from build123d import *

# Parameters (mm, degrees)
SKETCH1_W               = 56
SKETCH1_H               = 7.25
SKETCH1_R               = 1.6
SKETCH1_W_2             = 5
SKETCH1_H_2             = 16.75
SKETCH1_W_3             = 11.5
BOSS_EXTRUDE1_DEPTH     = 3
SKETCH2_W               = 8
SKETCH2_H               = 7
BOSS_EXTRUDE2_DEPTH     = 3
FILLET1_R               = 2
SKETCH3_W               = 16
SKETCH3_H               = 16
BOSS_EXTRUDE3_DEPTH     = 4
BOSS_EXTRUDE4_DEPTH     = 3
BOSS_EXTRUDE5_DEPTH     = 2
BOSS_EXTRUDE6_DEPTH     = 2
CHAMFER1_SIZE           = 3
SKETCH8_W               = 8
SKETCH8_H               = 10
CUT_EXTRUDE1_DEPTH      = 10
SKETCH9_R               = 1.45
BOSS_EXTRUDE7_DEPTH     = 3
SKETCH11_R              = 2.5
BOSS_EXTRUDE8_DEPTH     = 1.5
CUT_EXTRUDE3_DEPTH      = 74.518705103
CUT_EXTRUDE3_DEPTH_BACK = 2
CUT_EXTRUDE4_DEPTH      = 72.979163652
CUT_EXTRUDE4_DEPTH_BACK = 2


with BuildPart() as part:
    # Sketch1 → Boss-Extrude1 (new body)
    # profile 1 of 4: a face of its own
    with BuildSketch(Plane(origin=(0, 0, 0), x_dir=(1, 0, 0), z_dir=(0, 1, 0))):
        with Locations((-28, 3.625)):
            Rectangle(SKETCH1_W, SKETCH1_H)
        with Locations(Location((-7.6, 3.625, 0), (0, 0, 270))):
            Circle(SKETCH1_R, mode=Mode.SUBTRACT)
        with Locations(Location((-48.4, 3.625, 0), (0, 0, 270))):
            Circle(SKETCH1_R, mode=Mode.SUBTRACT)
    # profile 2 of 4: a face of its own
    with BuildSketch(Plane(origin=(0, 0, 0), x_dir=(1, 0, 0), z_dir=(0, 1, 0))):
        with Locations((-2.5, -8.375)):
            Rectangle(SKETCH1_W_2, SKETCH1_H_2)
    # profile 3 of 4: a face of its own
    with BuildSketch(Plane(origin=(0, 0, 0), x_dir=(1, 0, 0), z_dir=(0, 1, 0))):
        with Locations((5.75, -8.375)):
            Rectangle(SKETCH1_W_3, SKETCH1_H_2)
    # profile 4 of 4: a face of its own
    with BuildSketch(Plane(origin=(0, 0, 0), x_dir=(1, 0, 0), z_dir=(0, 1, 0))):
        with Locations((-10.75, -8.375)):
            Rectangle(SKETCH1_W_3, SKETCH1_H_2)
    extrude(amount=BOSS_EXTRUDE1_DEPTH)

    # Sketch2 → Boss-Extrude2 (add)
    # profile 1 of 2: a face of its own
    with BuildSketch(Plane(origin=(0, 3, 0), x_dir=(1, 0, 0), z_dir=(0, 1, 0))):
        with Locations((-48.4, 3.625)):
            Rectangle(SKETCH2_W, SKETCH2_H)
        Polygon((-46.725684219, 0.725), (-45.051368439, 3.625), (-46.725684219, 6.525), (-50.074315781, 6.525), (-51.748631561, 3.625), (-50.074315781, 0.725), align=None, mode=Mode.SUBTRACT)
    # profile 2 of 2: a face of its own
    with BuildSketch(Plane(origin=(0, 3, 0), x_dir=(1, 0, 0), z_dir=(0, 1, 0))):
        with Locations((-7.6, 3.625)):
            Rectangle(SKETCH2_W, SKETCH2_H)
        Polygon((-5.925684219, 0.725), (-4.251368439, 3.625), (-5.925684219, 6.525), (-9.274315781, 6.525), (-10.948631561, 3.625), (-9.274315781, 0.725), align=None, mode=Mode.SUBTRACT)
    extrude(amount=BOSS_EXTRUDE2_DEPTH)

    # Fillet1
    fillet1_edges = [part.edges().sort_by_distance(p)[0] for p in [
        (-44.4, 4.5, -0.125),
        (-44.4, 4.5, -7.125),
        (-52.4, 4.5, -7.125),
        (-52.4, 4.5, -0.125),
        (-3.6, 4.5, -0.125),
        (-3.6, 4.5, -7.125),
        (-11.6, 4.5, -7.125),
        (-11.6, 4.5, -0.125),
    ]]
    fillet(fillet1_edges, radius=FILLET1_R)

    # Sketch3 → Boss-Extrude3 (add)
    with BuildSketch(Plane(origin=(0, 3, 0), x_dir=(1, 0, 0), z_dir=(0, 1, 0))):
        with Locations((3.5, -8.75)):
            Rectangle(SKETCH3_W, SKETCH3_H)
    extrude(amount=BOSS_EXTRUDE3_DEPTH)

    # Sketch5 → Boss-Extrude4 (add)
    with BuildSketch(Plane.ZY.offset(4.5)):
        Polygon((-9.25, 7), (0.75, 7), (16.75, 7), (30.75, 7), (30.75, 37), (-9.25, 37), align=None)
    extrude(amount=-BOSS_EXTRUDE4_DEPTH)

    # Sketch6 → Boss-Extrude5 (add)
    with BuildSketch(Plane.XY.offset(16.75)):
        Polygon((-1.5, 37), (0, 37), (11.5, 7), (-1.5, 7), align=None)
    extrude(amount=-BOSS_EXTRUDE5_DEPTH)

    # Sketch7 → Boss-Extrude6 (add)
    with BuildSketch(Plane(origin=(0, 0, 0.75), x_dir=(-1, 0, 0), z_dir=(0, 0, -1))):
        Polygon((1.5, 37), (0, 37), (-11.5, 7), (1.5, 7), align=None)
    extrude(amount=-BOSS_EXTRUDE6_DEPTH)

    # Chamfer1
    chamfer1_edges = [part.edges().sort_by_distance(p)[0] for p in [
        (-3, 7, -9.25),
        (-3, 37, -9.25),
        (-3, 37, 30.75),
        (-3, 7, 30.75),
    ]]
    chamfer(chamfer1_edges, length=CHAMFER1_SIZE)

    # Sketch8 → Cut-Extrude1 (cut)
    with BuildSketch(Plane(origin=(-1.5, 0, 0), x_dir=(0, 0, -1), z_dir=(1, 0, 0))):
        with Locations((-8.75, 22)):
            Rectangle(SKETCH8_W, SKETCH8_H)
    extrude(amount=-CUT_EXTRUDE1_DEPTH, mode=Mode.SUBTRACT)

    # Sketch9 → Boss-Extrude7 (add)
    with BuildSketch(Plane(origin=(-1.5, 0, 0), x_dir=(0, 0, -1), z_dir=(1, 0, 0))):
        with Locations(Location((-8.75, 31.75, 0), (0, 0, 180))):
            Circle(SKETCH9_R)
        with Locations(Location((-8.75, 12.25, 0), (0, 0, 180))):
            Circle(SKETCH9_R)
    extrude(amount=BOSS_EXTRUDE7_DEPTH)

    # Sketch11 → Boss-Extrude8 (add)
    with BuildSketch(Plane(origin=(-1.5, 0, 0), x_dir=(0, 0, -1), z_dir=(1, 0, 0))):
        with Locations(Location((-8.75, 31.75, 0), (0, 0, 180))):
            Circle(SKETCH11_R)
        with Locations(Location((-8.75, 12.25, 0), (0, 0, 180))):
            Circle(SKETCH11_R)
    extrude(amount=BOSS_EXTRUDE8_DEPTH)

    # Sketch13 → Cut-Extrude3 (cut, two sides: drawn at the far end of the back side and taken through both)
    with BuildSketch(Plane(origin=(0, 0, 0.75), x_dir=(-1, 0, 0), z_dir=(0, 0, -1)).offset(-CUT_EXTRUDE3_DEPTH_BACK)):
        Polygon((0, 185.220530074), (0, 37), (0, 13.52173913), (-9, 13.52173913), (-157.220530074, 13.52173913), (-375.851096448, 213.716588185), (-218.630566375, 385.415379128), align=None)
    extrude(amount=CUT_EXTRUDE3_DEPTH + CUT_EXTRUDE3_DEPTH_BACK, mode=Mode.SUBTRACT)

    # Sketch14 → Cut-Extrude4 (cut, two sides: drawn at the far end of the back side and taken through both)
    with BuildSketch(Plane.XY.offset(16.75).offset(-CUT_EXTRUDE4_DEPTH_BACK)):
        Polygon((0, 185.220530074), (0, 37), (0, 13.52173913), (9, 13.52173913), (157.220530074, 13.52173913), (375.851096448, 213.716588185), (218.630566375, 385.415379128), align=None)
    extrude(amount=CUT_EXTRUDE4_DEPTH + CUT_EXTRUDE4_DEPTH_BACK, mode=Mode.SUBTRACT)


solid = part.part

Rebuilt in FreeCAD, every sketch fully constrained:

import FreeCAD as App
import Part
import Sketcher
Q = App.Units.Quantity


def edges_at(feature, points):
    """Names of the edges that pass closest to the given points."""
    edges = feature.Shape.Edges
    near = lambda p: min(range(len(edges)), key=lambda i: edges[i].distToShape(Part.Vertex(*p))[0])
    return sorted({f"Edge{near(p) + 1}" for p in points})

doc = App.newDocument("Part")
body = doc.addObject("PartDesign::Body", "Body")

sketch1 = body.newObject("Sketcher::SketchObject", "Sketch")
sketch1.AttachmentSupport = (doc.getObject("XZ_Plane"), [""])
sketch1.MapMode = "FlatFace"
sketch1.addGeometry([
    Part.LineSegment(App.Vector(-56, -7.2, 0), App.Vector(-56, 0, 0)),
    Part.LineSegment(App.Vector(-56, 0, 0), App.Vector(-16.5, 0, 0)),
    Part.LineSegment(App.Vector(-16.5, 0, 0), App.Vector(-16.5, 16.8, 0)),
    Part.LineSegment(App.Vector(-16.5, 16.8, 0), App.Vector(11.5, 16.8, 0)),
    Part.LineSegment(App.Vector(11.5, 16.8, 0), App.Vector(11.5, 0, 0)),
    Part.LineSegment(App.Vector(11.5, 0, 0), App.Vector(0, 0, 0)),
    Part.LineSegment(App.Vector(0, 0, 0), App.Vector(0, -7.2, 0)),
    Part.LineSegment(App.Vector(0, -7.2, 0), App.Vector(-56, -7.2, 0)),
    Part.Circle(App.Vector(-48.4, -3.6, 0), App.Vector(0, 0, 1), 1.6),
    Part.Circle(App.Vector(-7.6, -3.6, 0), App.Vector(0, 0, 1), 1.6),
], False)
sketch1.addConstraint([
    Sketcher.Constraint("Coincident", 0, 2, 1, 1),
    Sketcher.Constraint("Coincident", 1, 2, 2, 1),
    Sketcher.Constraint("Coincident", 2, 2, 3, 1),
    Sketcher.Constraint("Coincident", 3, 2, 4, 1),
    Sketcher.Constraint("Coincident", 4, 2, 5, 1),
    Sketcher.Constraint("Coincident", 5, 2, 6, 1),
    Sketcher.Constraint("Coincident", 6, 2, 7, 1),
    Sketcher.Constraint("Coincident", 7, 2, 0, 1),
    Sketcher.Constraint("Vertical", 0),
    Sketcher.Constraint("Horizontal", 1),
    Sketcher.Constraint("Vertical", 2),
    Sketcher.Constraint("Horizontal", 3),
    Sketcher.Constraint("Vertical", 4),
    Sketcher.Constraint("Horizontal", 5),
    Sketcher.Constraint("Vertical", 6),
    Sketcher.Constraint("Horizontal", 7),
    Sketcher.Constraint("Coincident", 5, 2, -1, 1),
    Sketcher.Constraint("Equal", 8, 9),
    Sketcher.Constraint("PointOnObject", 0, 2, -1),
    Sketcher.Constraint("Horizontal", 8, 3, 9, 3),
    Sketcher.Constraint("Diameter", 8, 3.2),
    Sketcher.Constraint("DistanceX", 3, 1, 3, 2, 28.0),
    Sketcher.Constraint("DistanceX", 7, 2, 7, 1, 56.0),
    Sketcher.Constraint("DistanceX", 1, 1, 1, 2, 39.5),
    Sketcher.Constraint("DistanceY", 6, 2, 3, 2, 24.0),
    Sketcher.Constraint("DistanceY", 0, 1, 0, 2, 7.25),
    Sketcher.Constraint("DistanceX", 8, 3, -1, 1, 48.4),
    Sketcher.Constraint("DistanceX", 9, 3, -1, 1, 7.6),
    Sketcher.Constraint("DistanceY", 8, 3, -1, 1, 3.625),
])
pad1 = body.newObject("PartDesign::Pad", "Pad")
pad1.Profile = sketch1
pad1.Length = 3
pad1.Reversed = True

sketch2 = body.newObject("Sketcher::SketchObject", "Sketch001")
sketch2.AttachmentSupport = (doc.getObject("XZ_Plane"), [""])
sketch2.MapMode = "FlatFace"
sketch2.AttachmentOffset = App.Placement(App.Vector(0, 0, -3), App.Rotation())
sketch2.addGeometry([
    Part.LineSegment(App.Vector(-52.4, -7.1, 0), App.Vector(-52.4, -0.1, 0)),
    Part.LineSegment(App.Vector(-52.4, -0.1, 0), App.Vector(-44.4, -0.1, 0)),
    Part.LineSegment(App.Vector(-44.4, -0.1, 0), App.Vector(-44.4, -7.1, 0)),
    Part.LineSegment(App.Vector(-44.4, -7.1, 0), App.Vector(-52.4, -7.1, 0)),
    Part.LineSegment(App.Vector(-45.1, -3.6, 0), App.Vector(-46.7, -0.7, 0)),
    Part.LineSegment(App.Vector(-46.7, -0.7, 0), App.Vector(-50.1, -0.7, 0)),
    Part.LineSegment(App.Vector(-50.1, -0.7, 0), App.Vector(-51.7, -3.6, 0)),
    Part.LineSegment(App.Vector(-51.7, -3.6, 0), App.Vector(-50.1, -6.5, 0)),
    Part.LineSegment(App.Vector(-50.1, -6.5, 0), App.Vector(-46.7, -6.5, 0)),
    Part.LineSegment(App.Vector(-46.7, -6.5, 0), App.Vector(-45.1, -3.6, 0)),
    Part.LineSegment(App.Vector(-11.6, -7.1, 0), App.Vector(-11.6, -0.1, 0)),
    Part.LineSegment(App.Vector(-11.6, -0.1, 0), App.Vector(-3.6, -0.1, 0)),
    Part.LineSegment(App.Vector(-3.6, -0.1, 0), App.Vector(-3.6, -7.1, 0)),
    Part.LineSegment(App.Vector(-3.6, -7.1, 0), App.Vector(-11.6, -7.1, 0)),
    Part.LineSegment(App.Vector(-4.3, -3.6, 0), App.Vector(-5.9, -0.7, 0)),
    Part.LineSegment(App.Vector(-5.9, -0.7, 0), App.Vector(-9.3, -0.7, 0)),
    Part.LineSegment(App.Vector(-9.3, -0.7, 0), App.Vector(-10.9, -3.6, 0)),
    Part.LineSegment(App.Vector(-10.9, -3.6, 0), App.Vector(-9.3, -6.5, 0)),
    Part.LineSegment(App.Vector(-9.3, -6.5, 0), App.Vector(-5.9, -6.5, 0)),
    Part.LineSegment(App.Vector(-5.9, -6.5, 0), App.Vector(-4.3, -3.6, 0)),
], False)
sketch2.addConstraint([
    Sketcher.Constraint("Coincident", 0, 2, 1, 1),
    Sketcher.Constraint("Coincident", 1, 2, 2, 1),
    Sketcher.Constraint("Coincident", 2, 2, 3, 1),
    Sketcher.Constraint("Coincident", 3, 2, 0, 1),
    Sketcher.Constraint("Coincident", 4, 2, 5, 1),
    Sketcher.Constraint("Coincident", 5, 2, 6, 1),
    Sketcher.Constraint("Coincident", 6, 2, 7, 1),
    Sketcher.Constraint("Coincident", 7, 2, 8, 1),
    Sketcher.Constraint("Coincident", 8, 2, 9, 1),
    Sketcher.Constraint("Coincident", 9, 2, 4, 1),
    Sketcher.Constraint("Coincident", 10, 2, 11, 1),
    Sketcher.Constraint("Coincident", 11, 2, 12, 1),
    Sketcher.Constraint("Coincident", 12, 2, 13, 1),
    Sketcher.Constraint("Coincident", 13, 2, 10, 1),
    Sketcher.Constraint("Coincident", 14, 2, 15, 1),
    Sketcher.Constraint("Coincident", 15, 2, 16, 1),
    Sketcher.Constraint("Coincident", 16, 2, 17, 1),
    Sketcher.Constraint("Coincident", 17, 2, 18, 1),
    Sketcher.Constraint("Coincident", 18, 2, 19, 1),
    Sketcher.Constraint("Coincident", 19, 2, 14, 1),
    Sketcher.Constraint("Vertical", 0),
    Sketcher.Constraint("Horizontal", 1),
    Sketcher.Constraint("Vertical", 2),
    Sketcher.Constraint("Horizontal", 3),
    Sketcher.Constraint("Horizontal", 5),
    Sketcher.Constraint("Horizontal", 8),
    Sketcher.Constraint("Vertical", 10),
    Sketcher.Constraint("Horizontal", 11),
    Sketcher.Constraint("Vertical", 12),
    Sketcher.Constraint("Horizontal", 13),
    Sketcher.Constraint("Horizontal", 15),
    Sketcher.Constraint("Horizontal", 18),
    Sketcher.Constraint("Parallel", 4, 7),
    Sketcher.Constraint("Parallel", 6, 9),
    Sketcher.Constraint("Parallel", 7, 14),
    Sketcher.Constraint("Parallel", 9, 16),
    Sketcher.Constraint("Parallel", 14, 17),
    Sketcher.Constraint("Parallel", 16, 19),
    Sketcher.Constraint("Horizontal", 6, 2, 9, 2),
    Sketcher.Constraint("Horizontal", 1, 2, 10, 2),
    Sketcher.Constraint("Horizontal", 3, 2, 12, 2),
    Sketcher.Constraint("Horizontal", 5, 2, 14, 2),
    Sketcher.Constraint("Horizontal", 9, 2, 16, 2),
    Sketcher.Constraint("Horizontal", 8, 2, 17, 2),
    Sketcher.Constraint("Horizontal", 16, 2, 19, 2),
    Sketcher.Constraint("Vertical", 5, 2, 7, 2),
    Sketcher.Constraint("Vertical", 4, 2, 8, 2),
    Sketcher.Constraint("Equal", 3, 11),
    Sketcher.Constraint("Equal", 8, 15),
    Sketcher.Constraint("DistanceX", 1, 1, 1, 2, 8.0),
    Sketcher.Constraint("DistanceY", 0, 1, 0, 2, 7.0),
    Sketcher.Constraint("Angle", 4, Q("120 deg")),
    Sketcher.Constraint("DistanceX", 0, 2, -1, 1, 52.4),
    Sketcher.Constraint("DistanceX", 10, 2, -1, 1, 11.6),
    Sketcher.Constraint("DistanceY", 4, 2, 1, 2, 0.6),
    Sketcher.Constraint("DistanceY", 6, 2, 5, 2, 2.9),
    Sketcher.Constraint("DistanceY", 0, 2, -1, 1, 0.125),
    Sketcher.Constraint("DistanceX", 5, 2, 5, 1, 3.348632),
    Sketcher.Constraint("DistanceX", 6, 2, -1, 1, 51.748632),
    Sketcher.Constraint("DistanceX", 16, 2, -1, 1, 10.948632),
])
pad2 = body.newObject("PartDesign::Pad", "Pad001")
pad2.Profile = sketch2
pad2.Length = 3
pad2.Reversed = True
doc.recompute()

fillet = body.newObject("PartDesign::Fillet", "Fillet")
fillet.Base = (pad2, edges_at(pad2, [
    (-44.4, 4.5, -0.125),
    (-44.4, 4.5, -7.125),
    (-52.4, 4.5, -7.125),
    (-52.4, 4.5, -0.125),
    (-3.6, 4.5, -0.125),
    (-3.6, 4.5, -7.125),
    (-11.6, 4.5, -7.125),
    (-11.6, 4.5, -0.125),
]))
fillet.Radius = 2

sketch3 = body.newObject("Sketcher::SketchObject", "Sketch002")
sketch3.AttachmentSupport = (doc.getObject("XZ_Plane"), [""])
sketch3.MapMode = "FlatFace"
sketch3.AttachmentOffset = App.Placement(App.Vector(0, 0, -3), App.Rotation())
sketch3.addGeometry([
    Part.LineSegment(App.Vector(-4, 1, 0), App.Vector(-4, 17, 0)),
    Part.LineSegment(App.Vector(-4, 17, 0), App.Vector(12, 17, 0)),
    Part.LineSegment(App.Vector(12, 17, 0), App.Vector(12, 1, 0)),
    Part.LineSegment(App.Vector(12, 1, 0), App.Vector(-4, 1, 0)),
], False)
sketch3.addConstraint([
    Sketcher.Constraint("Coincident", 0, 2, 1, 1),
    Sketcher.Constraint("Coincident", 1, 2, 2, 1),
    Sketcher.Constraint("Coincident", 2, 2, 3, 1),
    Sketcher.Constraint("Coincident", 3, 2, 0, 1),
    Sketcher.Constraint("Vertical", 0),
    Sketcher.Constraint("Horizontal", 1),
    Sketcher.Constraint("Vertical", 2),
    Sketcher.Constraint("Horizontal", 3),
    Sketcher.Constraint("Equal", 3, 0),
    Sketcher.Constraint("DistanceX", 1, 1, 1, 2, 16.0),
    Sketcher.Constraint("DistanceX", 0, 2, -1, 1, 4.5),
    Sketcher.Constraint("DistanceY", -1, 1, 0, 2, 16.75),
])
pad3 = body.newObject("PartDesign::Pad", "Pad002")
pad3.Profile = sketch3
pad3.Length = 4
pad3.Reversed = True

sketch4 = body.newObject("Sketcher::SketchObject", "Sketch003")
sketch4.AttachmentSupport = (doc.getObject("YZ_Plane"), [""])
sketch4.MapMode = "FlatFace"
sketch4.AttachmentOffset = App.Placement(App.Vector(0, 0, -4.5), App.Rotation())
sketch4.addGeometry([
    Part.LineSegment(App.Vector(7, -9, 0), App.Vector(7, 31, 0)),
    Part.LineSegment(App.Vector(7, 31, 0), App.Vector(37, 31, 0)),
    Part.LineSegment(App.Vector(37, 31, 0), App.Vector(37, -9, 0)),
    Part.LineSegment(App.Vector(37, -9, 0), App.Vector(7, -9, 0)),
], False)
sketch4.addConstraint([
    Sketcher.Constraint("Coincident", 0, 2, 1, 1),
    Sketcher.Constraint("Coincident", 1, 2, 2, 1),
    Sketcher.Constraint("Coincident", 2, 2, 3, 1),
    Sketcher.Constraint("Coincident", 3, 2, 0, 1),
    Sketcher.Constraint("Vertical", 0),
    Sketcher.Constraint("Horizontal", 1),
    Sketcher.Constraint("Vertical", 2),
    Sketcher.Constraint("Horizontal", 3),
    Sketcher.Constraint("DistanceX", 1, 1, 1, 2, 30.0),
    Sketcher.Constraint("DistanceY", 0, 1, 0, 2, 40.0),
    Sketcher.Constraint("DistanceX", -1, 1, 0, 2, 7.0),
    Sketcher.Constraint("DistanceY", -1, 1, 0, 2, 30.75),
])
pad4 = body.newObject("PartDesign::Pad", "Pad003")
pad4.Profile = sketch4
pad4.Length = 3

sketch5 = body.newObject("Sketcher::SketchObject", "Sketch004")
sketch5.AttachmentSupport = (doc.getObject("XY_Plane"), [""])
sketch5.MapMode = "FlatFace"
sketch5.AttachmentOffset = App.Placement(App.Vector(0, 0, 16.75), App.Rotation())
sketch5.addGeometry([
    Part.LineSegment(App.Vector(0, 37, 0), App.Vector(-1.5, 37, 0)),
    Part.LineSegment(App.Vector(-1.5, 37, 0), App.Vector(-1.5, 7, 0)),
    Part.LineSegment(App.Vector(-1.5, 7, 0), App.Vector(11.5, 7, 0)),
    Part.LineSegment(App.Vector(11.5, 7, 0), App.Vector(0, 37, 0)),
], False)
sketch5.addConstraint([
    Sketcher.Constraint("Coincident", 0, 2, 1, 1),
    Sketcher.Constraint("Coincident", 1, 2, 2, 1),
    Sketcher.Constraint("Coincident", 2, 2, 3, 1),
    Sketcher.Constraint("Coincident", 3, 2, 0, 1),
    Sketcher.Constraint("Horizontal", 0),
    Sketcher.Constraint("Vertical", 1),
    Sketcher.Constraint("Horizontal", 2),
    Sketcher.Constraint("PointOnObject", 3, 2, -2),
    Sketcher.Constraint("DistanceX", 2, 1, 2, 2, 13.0),
    Sketcher.Constraint("DistanceY", 1, 2, 1, 1, 30.0),
    Sketcher.Constraint("DistanceX", 0, 2, 0, 1, 1.5),
    Sketcher.Constraint("DistanceY", -1, 1, 0, 2, 37.0),
])
pad5 = body.newObject("PartDesign::Pad", "Pad004")
pad5.Profile = sketch5
pad5.Length = 2
pad5.Reversed = True

sketch6 = body.newObject("Sketcher::SketchObject", "Sketch005")
sketch6.AttachmentSupport = (doc.getObject("XY_Plane"), [""])
sketch6.MapMode = "FlatFace"
sketch6.AttachmentOffset = App.Placement(App.Vector(0, 0, 0.75), App.Rotation())
sketch6.addGeometry([
    Part.LineSegment(App.Vector(-1.5, 37, 0), App.Vector(0, 37, 0)),
    Part.LineSegment(App.Vector(0, 37, 0), App.Vector(11.5, 7, 0)),
    Part.LineSegment(App.Vector(11.5, 7, 0), App.Vector(-1.5, 7, 0)),
    Part.LineSegment(App.Vector(-1.5, 7, 0), App.Vector(-1.5, 37, 0)),
], False)
sketch6.addConstraint([
    Sketcher.Constraint("Coincident", 0, 2, 1, 1),
    Sketcher.Constraint("Coincident", 1, 2, 2, 1),
    Sketcher.Constraint("Coincident", 2, 2, 3, 1),
    Sketcher.Constraint("Coincident", 3, 2, 0, 1),
    Sketcher.Constraint("Horizontal", 0),
    Sketcher.Constraint("Horizontal", 2),
    Sketcher.Constraint("Vertical", 3),
    Sketcher.Constraint("PointOnObject", 0, 2, -2),
    Sketcher.Constraint("DistanceX", 2, 2, 2, 1, 13.0),
    Sketcher.Constraint("DistanceY", 3, 1, 3, 2, 30.0),
    Sketcher.Constraint("DistanceX", 0, 1, 0, 2, 1.5),
    Sketcher.Constraint("DistanceY", -1, 1, 0, 2, 37.0),
])
pad6 = body.newObject("PartDesign::Pad", "Pad005")
pad6.Profile = sketch6
pad6.Length = 2
doc.recompute()

chamfer = body.newObject("PartDesign::Chamfer", "Chamfer")
chamfer.Base = (pad6, edges_at(pad6, [
    (-3, 7, -9.25),
    (-3, 37, -9.25),
    (-3, 37, 30.75),
    (-3, 7, 30.75),
]))
chamfer.Size = 3

sketch7 = body.newObject("Sketcher::SketchObject", "Sketch006")
sketch7.AttachmentSupport = (doc.getObject("YZ_Plane"), [""])
sketch7.MapMode = "FlatFace"
sketch7.AttachmentOffset = App.Placement(App.Vector(0, 0, -1.5), App.Rotation())
sketch7.addGeometry([
    Part.LineSegment(App.Vector(27, 13, 0), App.Vector(17, 13, 0)),
    Part.LineSegment(App.Vector(17, 13, 0), App.Vector(17, 5, 0)),
    Part.LineSegment(App.Vector(17, 5, 0), App.Vector(27, 5, 0)),
    Part.LineSegment(App.Vector(27, 5, 0), App.Vector(27, 13, 0)),
], False)
sketch7.addConstraint([
    Sketcher.Constraint("Coincident", 0, 2, 1, 1),
    Sketcher.Constraint("Coincident", 1, 2, 2, 1),
    Sketcher.Constraint("Coincident", 2, 2, 3, 1),
    Sketcher.Constraint("Coincident", 3, 2, 0, 1),
    Sketcher.Constraint("Horizontal", 0),
    Sketcher.Constraint("Vertical", 1),
    Sketcher.Constraint("Horizontal", 2),
    Sketcher.Constraint("Vertical", 3),
    Sketcher.Constraint("DistanceX", 0, 2, 0, 1, 10.0),
    Sketcher.Constraint("DistanceY", 1, 2, 1, 1, 8.0),
    Sketcher.Constraint("DistanceX", -1, 1, 0, 2, 17.0),
    Sketcher.Constraint("DistanceY", -1, 1, 0, 2, 12.75),
])
pocket1 = body.newObject("PartDesign::Pocket", "Pocket")
pocket1.Profile = sketch7
pocket1.Length = 10

sketch8 = body.newObject("Sketcher::SketchObject", "Sketch007")
sketch8.AttachmentSupport = (doc.getObject("YZ_Plane"), [""])
sketch8.MapMode = "FlatFace"
sketch8.AttachmentOffset = App.Placement(App.Vector(0, 0, -1.5), App.Rotation())
sketch8.addGeometry([
    Part.Circle(App.Vector(31.8, 8.8, 0), App.Vector(0, 0, 1), 1.4),
    Part.Circle(App.Vector(12.2, 8.8, 0), App.Vector(0, 0, 1), 1.4),
], False)
sketch8.addConstraint([
    Sketcher.Constraint("Equal", 0, 1),
    Sketcher.Constraint("Horizontal", 0, 3, 1, 3),
    Sketcher.Constraint("Diameter", 0, 2.9),
    Sketcher.Constraint("DistanceX", 1, 3, 0, 3, 19.5),
    Sketcher.Constraint("DistanceX", -1, 1, 0, 3, 31.75),
    Sketcher.Constraint("DistanceY", -1, 1, 0, 3, 8.75),
])
pad7 = body.newObject("PartDesign::Pad", "Pad006")
pad7.Profile = sketch8
pad7.Length = 3

sketch9 = body.newObject("Sketcher::SketchObject", "Sketch008")
sketch9.AttachmentSupport = (doc.getObject("YZ_Plane"), [""])
sketch9.MapMode = "FlatFace"
sketch9.AttachmentOffset = App.Placement(App.Vector(0, 0, -1.5), App.Rotation())
sketch9.addGeometry([
    Part.Circle(App.Vector(31.8, 8.8, 0), App.Vector(0, 0, 1), 2.5),
    Part.Circle(App.Vector(12.2, 8.8, 0), App.Vector(0, 0, 1), 2.5),
], False)
sketch9.addConstraint([
    Sketcher.Constraint("Equal", 0, 1),
    Sketcher.Constraint("Horizontal", 0, 3, 1, 3),
    Sketcher.Constraint("Diameter", 0, 5.0),
    Sketcher.Constraint("DistanceX", 1, 3, 0, 3, 19.5),
    Sketcher.Constraint("DistanceX", -1, 1, 0, 3, 31.75),
    Sketcher.Constraint("DistanceY", -1, 1, 0, 3, 8.75),
])
pad8 = body.newObject("PartDesign::Pad", "Pad007")
pad8.Profile = sketch9
pad8.Length = 1.5

sketch10 = body.newObject("Sketcher::SketchObject", "Sketch009")
sketch10.AttachmentSupport = (doc.getObject("XY_Plane"), [""])
sketch10.MapMode = "FlatFace"
sketch10.AttachmentOffset = App.Placement(App.Vector(0, 0, 0.75), App.Rotation())
sketch10.addGeometry([
    Part.LineSegment(App.Vector(0, 14, 0), App.Vector(0, 185, 0)),
    Part.LineSegment(App.Vector(0, 185, 0), App.Vector(219, 385, 0)),
    Part.LineSegment(App.Vector(219, 385, 0), App.Vector(376, 214, 0)),
    Part.LineSegment(App.Vector(376, 214, 0), App.Vector(157, 14, 0)),
    Part.LineSegment(App.Vector(157, 14, 0), App.Vector(0, 14, 0)),
], False)
sketch10.addConstraint([
    Sketcher.Constraint("Coincident", 0, 2, 1, 1),
    Sketcher.Constraint("Coincident", 1, 2, 2, 1),
    Sketcher.Constraint("Coincident", 2, 2, 3, 1),
    Sketcher.Constraint("Coincident", 3, 2, 4, 1),
    Sketcher.Constraint("Coincident", 4, 2, 0, 1),
    Sketcher.Constraint("Vertical", 0),
    Sketcher.Constraint("Horizontal", 4),
    Sketcher.Constraint("PointOnObject", 0, 2, -2),
    Sketcher.Constraint("Perpendicular", 1, 2),
    Sketcher.Constraint("Perpendicular", 2, 3),
    Sketcher.Constraint("Equal", 1, 3),
    Sketcher.Constraint("DistanceX", 4, 2, 4, 1, 157.22053),
    Sketcher.Constraint("DistanceY", 0, 1, 0, 2, 171.698791),
    Sketcher.Constraint("Distance", 1, 296.44106),
    Sketcher.Constraint("DistanceY", -1, 1, 0, 2, 185.22053),
])
pocket2 = body.newObject("PartDesign::Pocket", "Pocket001")
pocket2.Profile = sketch10
pocket2.Type = "TwoLengths"
pocket2.Length = 74.518705
pocket2.Length2 = 2

sketch11 = body.newObject("Sketcher::SketchObject", "Sketch010")
sketch11.AttachmentSupport = (doc.getObject("XY_Plane"), [""])
sketch11.MapMode = "FlatFace"
sketch11.AttachmentOffset = App.Placement(App.Vector(0, 0, 16.75), App.Rotation())
sketch11.addGeometry([
    Part.LineSegment(App.Vector(0, 185, 0), App.Vector(0, 14, 0)),
    Part.LineSegment(App.Vector(0, 14, 0), App.Vector(157, 14, 0)),
    Part.LineSegment(App.Vector(157, 14, 0), App.Vector(376, 214, 0)),
    Part.LineSegment(App.Vector(376, 214, 0), App.Vector(219, 385, 0)),
    Part.LineSegment(App.Vector(219, 385, 0), App.Vector(0, 185, 0)),
], False)
sketch11.addConstraint([
    Sketcher.Constraint("Coincident", 0, 2, 1, 1),
    Sketcher.Constraint("Coincident", 1, 2, 2, 1),
    Sketcher.Constraint("Coincident", 2, 2, 3, 1),
    Sketcher.Constraint("Coincident", 3, 2, 4, 1),
    Sketcher.Constraint("Coincident", 4, 2, 0, 1),
    Sketcher.Constraint("Vertical", 0),
    Sketcher.Constraint("Horizontal", 1),
    Sketcher.Constraint("PointOnObject", 0, 2, -2),
    Sketcher.Constraint("Perpendicular", 2, 3),
    Sketcher.Constraint("Perpendicular", 3, 4),
    Sketcher.Constraint("Equal", 2, 4),
    Sketcher.Constraint("DistanceX", 1, 1, 1, 2, 157.22053),
    Sketcher.Constraint("DistanceY", 0, 2, 0, 1, 171.698791),
    Sketcher.Constraint("Distance", 2, 296.44106),
    Sketcher.Constraint("DistanceY", -1, 1, 0, 2, 13.521739),
])
pocket3 = body.newObject("PartDesign::Pocket", "Pocket002")
pocket3.Profile = sketch11
pocket3.Type = "TwoLengths"
pocket3.Length = 72.979164
pocket3.Length2 = 2
pocket3.Reversed = True

doc.recompute()
